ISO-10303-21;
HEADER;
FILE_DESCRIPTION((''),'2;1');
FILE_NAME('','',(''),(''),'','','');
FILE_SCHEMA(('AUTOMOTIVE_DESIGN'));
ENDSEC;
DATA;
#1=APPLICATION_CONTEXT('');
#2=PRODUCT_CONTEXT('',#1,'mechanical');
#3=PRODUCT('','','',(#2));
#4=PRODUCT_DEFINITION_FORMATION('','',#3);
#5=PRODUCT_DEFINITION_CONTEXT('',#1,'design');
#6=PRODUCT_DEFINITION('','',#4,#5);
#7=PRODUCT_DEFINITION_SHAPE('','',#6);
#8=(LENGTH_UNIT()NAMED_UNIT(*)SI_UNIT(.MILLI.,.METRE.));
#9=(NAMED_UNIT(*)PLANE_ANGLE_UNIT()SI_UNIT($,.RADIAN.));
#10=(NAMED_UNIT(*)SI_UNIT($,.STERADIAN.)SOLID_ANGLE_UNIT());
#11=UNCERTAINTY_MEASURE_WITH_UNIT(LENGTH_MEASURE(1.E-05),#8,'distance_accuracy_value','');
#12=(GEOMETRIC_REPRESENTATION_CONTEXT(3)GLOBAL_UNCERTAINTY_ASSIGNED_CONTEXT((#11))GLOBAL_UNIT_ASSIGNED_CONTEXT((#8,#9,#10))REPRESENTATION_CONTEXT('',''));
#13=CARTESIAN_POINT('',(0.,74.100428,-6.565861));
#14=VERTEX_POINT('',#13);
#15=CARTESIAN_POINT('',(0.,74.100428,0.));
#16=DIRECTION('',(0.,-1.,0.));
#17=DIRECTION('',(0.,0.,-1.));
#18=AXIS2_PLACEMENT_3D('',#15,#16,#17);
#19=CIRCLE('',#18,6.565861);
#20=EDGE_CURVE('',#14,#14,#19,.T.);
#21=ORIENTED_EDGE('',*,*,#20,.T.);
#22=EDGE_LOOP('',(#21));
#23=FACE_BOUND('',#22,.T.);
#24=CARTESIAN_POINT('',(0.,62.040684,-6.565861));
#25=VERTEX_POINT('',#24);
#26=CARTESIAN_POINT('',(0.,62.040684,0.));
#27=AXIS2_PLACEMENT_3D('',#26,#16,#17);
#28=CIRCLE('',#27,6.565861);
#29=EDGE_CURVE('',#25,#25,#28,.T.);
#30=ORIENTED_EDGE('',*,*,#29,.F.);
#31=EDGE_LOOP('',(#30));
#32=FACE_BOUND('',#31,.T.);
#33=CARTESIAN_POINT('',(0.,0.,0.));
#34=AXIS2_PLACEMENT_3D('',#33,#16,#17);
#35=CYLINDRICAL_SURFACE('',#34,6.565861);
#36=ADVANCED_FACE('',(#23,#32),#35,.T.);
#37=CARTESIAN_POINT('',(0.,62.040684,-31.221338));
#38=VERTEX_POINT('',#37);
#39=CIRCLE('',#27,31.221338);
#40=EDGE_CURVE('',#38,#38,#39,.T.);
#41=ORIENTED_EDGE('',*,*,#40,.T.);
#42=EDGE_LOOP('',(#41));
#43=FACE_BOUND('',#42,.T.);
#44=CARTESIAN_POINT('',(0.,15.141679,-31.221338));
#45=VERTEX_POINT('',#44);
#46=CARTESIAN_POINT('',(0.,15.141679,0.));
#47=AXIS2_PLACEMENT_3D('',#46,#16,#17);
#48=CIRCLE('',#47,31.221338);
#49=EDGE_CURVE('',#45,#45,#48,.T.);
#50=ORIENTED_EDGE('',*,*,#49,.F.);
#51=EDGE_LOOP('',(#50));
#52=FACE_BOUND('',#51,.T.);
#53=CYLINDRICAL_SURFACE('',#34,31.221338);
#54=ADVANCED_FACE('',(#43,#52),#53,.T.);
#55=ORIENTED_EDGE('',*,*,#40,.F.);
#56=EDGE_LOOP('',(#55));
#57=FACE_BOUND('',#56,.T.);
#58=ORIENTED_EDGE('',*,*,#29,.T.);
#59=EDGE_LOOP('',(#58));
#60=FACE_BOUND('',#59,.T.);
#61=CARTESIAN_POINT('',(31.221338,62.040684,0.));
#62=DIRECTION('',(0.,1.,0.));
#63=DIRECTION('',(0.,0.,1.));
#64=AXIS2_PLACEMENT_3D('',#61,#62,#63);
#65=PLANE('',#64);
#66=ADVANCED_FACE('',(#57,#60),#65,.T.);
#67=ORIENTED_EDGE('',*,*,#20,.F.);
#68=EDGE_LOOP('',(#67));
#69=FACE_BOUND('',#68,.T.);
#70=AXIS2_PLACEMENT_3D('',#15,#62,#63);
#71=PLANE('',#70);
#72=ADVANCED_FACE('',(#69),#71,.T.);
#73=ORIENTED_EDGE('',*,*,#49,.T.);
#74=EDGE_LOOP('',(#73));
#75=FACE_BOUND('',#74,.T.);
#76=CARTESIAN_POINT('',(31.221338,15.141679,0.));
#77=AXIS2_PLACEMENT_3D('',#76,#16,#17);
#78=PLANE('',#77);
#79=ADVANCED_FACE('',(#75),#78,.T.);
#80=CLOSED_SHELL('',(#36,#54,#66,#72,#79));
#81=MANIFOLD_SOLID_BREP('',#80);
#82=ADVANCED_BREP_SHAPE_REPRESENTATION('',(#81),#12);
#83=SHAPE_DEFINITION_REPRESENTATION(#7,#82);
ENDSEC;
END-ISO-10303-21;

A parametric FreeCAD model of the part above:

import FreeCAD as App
import Part
import Sketcher
from FreeCAD import Vector
Q = App.Units.Quantity

doc = App.newDocument("Part")
body = doc.addObject("PartDesign::Body", "Body")

# Sketch on XY plane
sketch1 = body.newObject("Sketcher::SketchObject", "Sketch")
sketch1.AttachmentSupport = (doc.getObject("XY_Plane"), [""])
sketch1.MapMode = "FlatFace"
sketch1.addGeometry([
    Part.LineSegment(Vector(31.221338, 15.141679, 0), Vector(31.221338, 62.040684, 0)),  # 0
    Part.LineSegment(Vector(31.221338, 62.040684, 0), Vector(6.565861, 62.040684, 0)),  # 1
    Part.LineSegment(Vector(6.565861, 62.040684, 0), Vector(6.565861, 74.100428, 0)),  # 2
    Part.LineSegment(Vector(6.565861, 74.100428, 0), Vector(0, 74.100428, 0)),  # 3
    Part.LineSegment(Vector(0, 74.100428, 0), Vector(0, 15.141679, 0)),  # 4
    Part.LineSegment(Vector(0, 15.141679, 0), Vector(31.221338, 15.141679, 0)),  # 5
], False)
sketch1.addConstraint([
    Sketcher.Constraint("Coincident", 0, 2, 1, 1),
    Sketcher.Constraint("Coincident", 1, 2, 2, 1),
    Sketcher.Constraint("Coincident", 2, 2, 3, 1),
    Sketcher.Constraint("Coincident", 3, 2, 4, 1),
    Sketcher.Constraint("Coincident", 4, 2, 5, 1),
    Sketcher.Constraint("Coincident", 5, 2, 0, 1),
    Sketcher.Constraint("Vertical", 0),
    Sketcher.Constraint("Horizontal", 1),
    Sketcher.Constraint("Vertical", 2),
    Sketcher.Constraint("Horizontal", 3),
    Sketcher.Constraint("Vertical", 4),
    Sketcher.Constraint("Horizontal", 5),
    Sketcher.Constraint("PointOnObject", 3, 2, -2),
    Sketcher.Constraint("DistanceX", 3, 2, 3, 1, Q("6.565861 mm")),
    Sketcher.Constraint("DistanceY", 4, 2, 4, 1, Q("58.95875 mm")),
    Sketcher.Constraint("DistanceX", 1, 2, 1, 1, Q("24.655477 mm")),
    Sketcher.Constraint("DistanceY", 0, 1, 0, 2, Q("46.899005 mm")),
    Sketcher.Constraint("DistanceY", -1, 1, 2, 2, Q("74.100428 mm")),
])
revolution = body.newObject("PartDesign::Revolution", "Revolution")
revolution.Profile = sketch1
revolution.ReferenceAxis = (sketch1, ["V_Axis"])
revolution.Angle = 360

doc.recompute()
